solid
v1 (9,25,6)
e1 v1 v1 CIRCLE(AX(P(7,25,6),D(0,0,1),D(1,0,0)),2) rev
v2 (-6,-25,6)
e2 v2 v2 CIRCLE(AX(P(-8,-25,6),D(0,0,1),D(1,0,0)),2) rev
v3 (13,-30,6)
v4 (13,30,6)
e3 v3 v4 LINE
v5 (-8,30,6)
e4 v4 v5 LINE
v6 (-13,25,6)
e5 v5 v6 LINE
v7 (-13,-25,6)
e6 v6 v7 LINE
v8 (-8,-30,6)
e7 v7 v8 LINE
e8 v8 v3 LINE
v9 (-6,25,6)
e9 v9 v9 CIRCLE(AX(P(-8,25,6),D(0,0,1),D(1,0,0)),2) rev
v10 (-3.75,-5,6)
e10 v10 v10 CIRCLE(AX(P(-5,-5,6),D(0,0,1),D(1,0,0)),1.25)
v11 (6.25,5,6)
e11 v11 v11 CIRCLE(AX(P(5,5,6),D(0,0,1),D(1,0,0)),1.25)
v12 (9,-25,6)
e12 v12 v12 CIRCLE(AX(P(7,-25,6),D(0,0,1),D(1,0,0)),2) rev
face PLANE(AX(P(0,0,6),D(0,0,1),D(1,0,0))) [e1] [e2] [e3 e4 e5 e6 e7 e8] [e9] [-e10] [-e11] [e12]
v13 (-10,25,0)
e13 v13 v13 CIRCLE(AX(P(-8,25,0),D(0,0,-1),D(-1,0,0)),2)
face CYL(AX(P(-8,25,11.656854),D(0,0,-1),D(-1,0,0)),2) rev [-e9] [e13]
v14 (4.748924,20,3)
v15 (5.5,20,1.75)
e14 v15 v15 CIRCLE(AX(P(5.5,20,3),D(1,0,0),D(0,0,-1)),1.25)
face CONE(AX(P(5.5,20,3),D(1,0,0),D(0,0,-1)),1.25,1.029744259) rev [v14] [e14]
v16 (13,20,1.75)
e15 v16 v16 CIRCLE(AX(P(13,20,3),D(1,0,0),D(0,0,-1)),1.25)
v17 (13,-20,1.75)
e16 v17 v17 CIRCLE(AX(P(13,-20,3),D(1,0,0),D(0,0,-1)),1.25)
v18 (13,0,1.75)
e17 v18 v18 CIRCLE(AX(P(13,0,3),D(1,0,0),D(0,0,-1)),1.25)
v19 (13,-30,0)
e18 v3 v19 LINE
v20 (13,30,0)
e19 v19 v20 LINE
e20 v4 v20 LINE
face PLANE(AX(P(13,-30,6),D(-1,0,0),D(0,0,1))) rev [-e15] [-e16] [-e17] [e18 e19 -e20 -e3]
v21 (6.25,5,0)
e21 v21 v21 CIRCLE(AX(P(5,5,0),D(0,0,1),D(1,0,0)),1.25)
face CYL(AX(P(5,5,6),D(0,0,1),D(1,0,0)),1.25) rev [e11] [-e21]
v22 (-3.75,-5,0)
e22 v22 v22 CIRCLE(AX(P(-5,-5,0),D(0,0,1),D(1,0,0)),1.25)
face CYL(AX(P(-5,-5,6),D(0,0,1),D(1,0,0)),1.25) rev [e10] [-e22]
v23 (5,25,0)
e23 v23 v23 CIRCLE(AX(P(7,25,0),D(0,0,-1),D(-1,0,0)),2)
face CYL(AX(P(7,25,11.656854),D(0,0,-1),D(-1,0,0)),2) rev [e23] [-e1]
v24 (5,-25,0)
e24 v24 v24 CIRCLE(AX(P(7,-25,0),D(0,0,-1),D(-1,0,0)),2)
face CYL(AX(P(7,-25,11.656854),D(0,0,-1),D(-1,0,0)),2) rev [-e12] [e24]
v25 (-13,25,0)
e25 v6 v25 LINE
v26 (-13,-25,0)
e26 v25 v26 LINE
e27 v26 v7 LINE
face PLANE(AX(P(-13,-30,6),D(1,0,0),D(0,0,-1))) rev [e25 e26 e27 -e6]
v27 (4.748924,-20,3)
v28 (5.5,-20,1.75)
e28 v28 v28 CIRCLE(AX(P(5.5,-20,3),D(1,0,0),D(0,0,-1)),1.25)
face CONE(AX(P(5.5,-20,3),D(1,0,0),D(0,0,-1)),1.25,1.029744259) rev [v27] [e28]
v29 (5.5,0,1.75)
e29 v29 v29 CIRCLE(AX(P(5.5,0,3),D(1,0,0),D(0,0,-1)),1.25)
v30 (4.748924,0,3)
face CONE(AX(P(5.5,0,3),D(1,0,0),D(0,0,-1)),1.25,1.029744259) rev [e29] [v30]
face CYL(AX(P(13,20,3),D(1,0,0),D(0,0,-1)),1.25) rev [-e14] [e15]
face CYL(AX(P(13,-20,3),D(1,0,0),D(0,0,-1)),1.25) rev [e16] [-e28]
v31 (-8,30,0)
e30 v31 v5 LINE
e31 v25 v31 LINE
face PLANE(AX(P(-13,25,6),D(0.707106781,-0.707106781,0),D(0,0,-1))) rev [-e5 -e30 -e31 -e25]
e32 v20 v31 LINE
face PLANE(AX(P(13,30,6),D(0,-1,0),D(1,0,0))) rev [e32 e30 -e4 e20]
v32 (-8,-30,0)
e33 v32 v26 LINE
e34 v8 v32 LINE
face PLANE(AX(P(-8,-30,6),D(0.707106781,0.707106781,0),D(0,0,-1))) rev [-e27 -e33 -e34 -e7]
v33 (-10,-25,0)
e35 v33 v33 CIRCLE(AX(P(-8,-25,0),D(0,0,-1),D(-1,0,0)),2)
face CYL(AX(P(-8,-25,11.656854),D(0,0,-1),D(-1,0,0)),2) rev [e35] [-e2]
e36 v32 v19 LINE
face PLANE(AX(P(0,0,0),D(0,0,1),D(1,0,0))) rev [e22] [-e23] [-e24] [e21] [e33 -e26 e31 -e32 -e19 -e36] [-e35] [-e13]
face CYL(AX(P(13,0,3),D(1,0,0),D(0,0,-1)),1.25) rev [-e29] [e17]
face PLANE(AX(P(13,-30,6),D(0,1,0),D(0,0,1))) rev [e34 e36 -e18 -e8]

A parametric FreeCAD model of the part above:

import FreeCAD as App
import Part
import Sketcher


def edges_at(feature, points):
    """Names of the edges that pass closest to the given points."""
    edges = feature.Shape.Edges
    near = lambda p: min(range(len(edges)), key=lambda i: edges[i].distToShape(Part.Vertex(*p))[0])
    return sorted({f"Edge{near(p) + 1}" for p in points})


def add_polygon(sketch, points):
    """Adds a closed chain of lines whose ends are joined by coincident constraints."""
    first, n = sketch.GeometryCount, len(points)
    for a, b in zip(points, points[1:] + points[:1]):
        sketch.addGeometry(Part.LineSegment(App.Vector(*a, 0), App.Vector(*b, 0)), False)
    for i in range(n):
        sketch.addConstraint(Sketcher.Constraint("Coincident", first + i, 2, first + (i + 1) % n, 1))

doc = App.newDocument("Part")
body = doc.addObject("PartDesign::Body", "Body")

# Sketch on XY plane
sketch1 = body.newObject("Sketcher::SketchObject", "Sketch")
sketch1.AttachmentSupport = (doc.getObject("XY_Plane"), [""])
sketch1.MapMode = "FlatFace"
add_polygon(sketch1, [(-13, 30), (-13, -30), (13, -30), (13, 30)])  # lines 0-3
sketch1.addConstraint([
    Sketcher.Constraint("Vertical", 0),
    Sketcher.Constraint("Horizontal", 1),
    Sketcher.Constraint("Vertical", 2),
    Sketcher.Constraint("Horizontal", 3),
    Sketcher.Constraint("Symmetric", 0, 2, 2, 2, -1, 1),
    Sketcher.Constraint("DistanceX", 1, 1, 1, 2, 26.0),
    Sketcher.Constraint("DistanceY", 0, 2, 0, 1, 60.0),
])
pad1 = body.newObject("PartDesign::Pad", "Pad")
pad1.Profile = sketch1
pad1.Length = 6

# Sketch on XY plane
sketch2 = body.newObject("Sketcher::SketchObject", "Sketch001")
sketch2.AttachmentSupport = (doc.getObject("XY_Plane"), [""])
sketch2.MapMode = "FlatFace"
sketch2.addGeometry([
    Part.Circle(App.Vector(-8, -25, 0), App.Vector(0, 0, 1), 2),
    Part.Circle(App.Vector(7, -25, 0), App.Vector(0, 0, 1), 2),
    Part.Circle(App.Vector(-8, 25, 0), App.Vector(0, 0, 1), 2),
    Part.Circle(App.Vector(7, 25, 0), App.Vector(0, 0, 1), 2),
], False)
sketch2.addConstraint([
    Sketcher.Constraint("Equal", 0, 1),
    Sketcher.Constraint("Equal", 1, 2),
    Sketcher.Constraint("Equal", 2, 3),
    Sketcher.Constraint("Symmetric", 0, 3, 2, 3, -1),
    Sketcher.Constraint("Symmetric", 1, 3, 3, 3, -1),
    Sketcher.Constraint("Horizontal", 0, 3, 1, 3),
    Sketcher.Constraint("Diameter", 0, 4.0),
    Sketcher.Constraint("DistanceX", 0, 3, -1, 1, 8.0),
    Sketcher.Constraint("DistanceY", 0, 3, -1, 1, 25.0),
    Sketcher.Constraint("DistanceX", -1, 1, 1, 3, 7.0),
])
pocket1 = body.newObject("PartDesign::Pocket", "Pocket")
pocket1.Profile = sketch2
pocket1.Length = 6
pocket1.Reversed = True

# Sketch on YZ plane
sketch3 = body.newObject("Sketcher::SketchObject", "Sketch002")
sketch3.AttachmentSupport = (doc.getObject("YZ_Plane"), [""])
sketch3.MapMode = "FlatFace"
sketch3.AttachmentOffset = App.Placement(App.Vector(0, 0, 13), App.Rotation())
sketch3.addGeometry([
    Part.Circle(App.Vector(20, 3, 0), App.Vector(0, 0, 1), 1.25),
    Part.Circle(App.Vector(0, 3, 0), App.Vector(0, 0, 1), 1.25),
    Part.Circle(App.Vector(-20, 3, 0), App.Vector(0, 0, 1), 1.25),
], False)
sketch3.addConstraint([
    Sketcher.Constraint("Equal", 0, 1),
    Sketcher.Constraint("Equal", 1, 2),
    Sketcher.Constraint("Symmetric", 0, 3, 2, 3, -2),
    Sketcher.Constraint("PointOnObject", 1, 3, -2),
    Sketcher.Constraint("Horizontal", 0, 3, 1, 3),
    Sketcher.Constraint("Diameter", 0, 2.5),
    Sketcher.Constraint("DistanceX", -1, 1, 0, 3, 20.0),
    Sketcher.Constraint("DistanceY", -1, 1, 0, 3, 3.0),
])
doc.recompute()
hole = body.newObject("PartDesign::Hole", "Hole")
hole.Profile = sketch3
hole.ThreadType = "None"
hole.Diameter = 2.5
hole.DepthType = "Dimension"
hole.Depth = 7.5
hole.DrillPoint = "Angled"
hole.DrillPointAngle = 118
doc.recompute()

chamfer = body.newObject("PartDesign::Chamfer", "Chamfer")
chamfer.Base = (hole, edges_at(hole, [(-13, 30, 3), (-13, -30, 3)]))
chamfer.Size = 5

# Sketch on XY plane
sketch4 = body.newObject("Sketcher::SketchObject", "Sketch003")
sketch4.AttachmentSupport = (doc.getObject("XY_Plane"), [""])
sketch4.MapMode = "FlatFace"
sketch4.AttachmentOffset = App.Placement(App.Vector(0, 0, 6), App.Rotation())
sketch4.addGeometry([
    Part.Circle(App.Vector(5, 5, 0), App.Vector(0, 0, 1), 1.25),
    Part.Circle(App.Vector(-5, -5, 0), App.Vector(0, 0, 1), 1.25),
], False)
sketch4.addConstraint([
    Sketcher.Constraint("Equal", 0, 1),
    Sketcher.Constraint("Symmetric", 0, 3, 1, 3, -1, 1),
    Sketcher.Constraint("Diameter", 0, 2.5),
    Sketcher.Constraint("DistanceX", -1, 1, 0, 3, 5.0),
    Sketcher.Constraint("DistanceY", -1, 1, 0, 3, 5.0),
])
doc.recompute()
hole2 = body.newObject("PartDesign::Hole", "Hole001")
hole2.Profile = sketch4
hole2.ThreadType = "None"
hole2.Diameter = 2.5
hole2.DepthType = "Dimension"
hole2.Depth = 7.5
hole2.DrillPoint = "Angled"
hole2.DrillPointAngle = 118

doc.recompute()
